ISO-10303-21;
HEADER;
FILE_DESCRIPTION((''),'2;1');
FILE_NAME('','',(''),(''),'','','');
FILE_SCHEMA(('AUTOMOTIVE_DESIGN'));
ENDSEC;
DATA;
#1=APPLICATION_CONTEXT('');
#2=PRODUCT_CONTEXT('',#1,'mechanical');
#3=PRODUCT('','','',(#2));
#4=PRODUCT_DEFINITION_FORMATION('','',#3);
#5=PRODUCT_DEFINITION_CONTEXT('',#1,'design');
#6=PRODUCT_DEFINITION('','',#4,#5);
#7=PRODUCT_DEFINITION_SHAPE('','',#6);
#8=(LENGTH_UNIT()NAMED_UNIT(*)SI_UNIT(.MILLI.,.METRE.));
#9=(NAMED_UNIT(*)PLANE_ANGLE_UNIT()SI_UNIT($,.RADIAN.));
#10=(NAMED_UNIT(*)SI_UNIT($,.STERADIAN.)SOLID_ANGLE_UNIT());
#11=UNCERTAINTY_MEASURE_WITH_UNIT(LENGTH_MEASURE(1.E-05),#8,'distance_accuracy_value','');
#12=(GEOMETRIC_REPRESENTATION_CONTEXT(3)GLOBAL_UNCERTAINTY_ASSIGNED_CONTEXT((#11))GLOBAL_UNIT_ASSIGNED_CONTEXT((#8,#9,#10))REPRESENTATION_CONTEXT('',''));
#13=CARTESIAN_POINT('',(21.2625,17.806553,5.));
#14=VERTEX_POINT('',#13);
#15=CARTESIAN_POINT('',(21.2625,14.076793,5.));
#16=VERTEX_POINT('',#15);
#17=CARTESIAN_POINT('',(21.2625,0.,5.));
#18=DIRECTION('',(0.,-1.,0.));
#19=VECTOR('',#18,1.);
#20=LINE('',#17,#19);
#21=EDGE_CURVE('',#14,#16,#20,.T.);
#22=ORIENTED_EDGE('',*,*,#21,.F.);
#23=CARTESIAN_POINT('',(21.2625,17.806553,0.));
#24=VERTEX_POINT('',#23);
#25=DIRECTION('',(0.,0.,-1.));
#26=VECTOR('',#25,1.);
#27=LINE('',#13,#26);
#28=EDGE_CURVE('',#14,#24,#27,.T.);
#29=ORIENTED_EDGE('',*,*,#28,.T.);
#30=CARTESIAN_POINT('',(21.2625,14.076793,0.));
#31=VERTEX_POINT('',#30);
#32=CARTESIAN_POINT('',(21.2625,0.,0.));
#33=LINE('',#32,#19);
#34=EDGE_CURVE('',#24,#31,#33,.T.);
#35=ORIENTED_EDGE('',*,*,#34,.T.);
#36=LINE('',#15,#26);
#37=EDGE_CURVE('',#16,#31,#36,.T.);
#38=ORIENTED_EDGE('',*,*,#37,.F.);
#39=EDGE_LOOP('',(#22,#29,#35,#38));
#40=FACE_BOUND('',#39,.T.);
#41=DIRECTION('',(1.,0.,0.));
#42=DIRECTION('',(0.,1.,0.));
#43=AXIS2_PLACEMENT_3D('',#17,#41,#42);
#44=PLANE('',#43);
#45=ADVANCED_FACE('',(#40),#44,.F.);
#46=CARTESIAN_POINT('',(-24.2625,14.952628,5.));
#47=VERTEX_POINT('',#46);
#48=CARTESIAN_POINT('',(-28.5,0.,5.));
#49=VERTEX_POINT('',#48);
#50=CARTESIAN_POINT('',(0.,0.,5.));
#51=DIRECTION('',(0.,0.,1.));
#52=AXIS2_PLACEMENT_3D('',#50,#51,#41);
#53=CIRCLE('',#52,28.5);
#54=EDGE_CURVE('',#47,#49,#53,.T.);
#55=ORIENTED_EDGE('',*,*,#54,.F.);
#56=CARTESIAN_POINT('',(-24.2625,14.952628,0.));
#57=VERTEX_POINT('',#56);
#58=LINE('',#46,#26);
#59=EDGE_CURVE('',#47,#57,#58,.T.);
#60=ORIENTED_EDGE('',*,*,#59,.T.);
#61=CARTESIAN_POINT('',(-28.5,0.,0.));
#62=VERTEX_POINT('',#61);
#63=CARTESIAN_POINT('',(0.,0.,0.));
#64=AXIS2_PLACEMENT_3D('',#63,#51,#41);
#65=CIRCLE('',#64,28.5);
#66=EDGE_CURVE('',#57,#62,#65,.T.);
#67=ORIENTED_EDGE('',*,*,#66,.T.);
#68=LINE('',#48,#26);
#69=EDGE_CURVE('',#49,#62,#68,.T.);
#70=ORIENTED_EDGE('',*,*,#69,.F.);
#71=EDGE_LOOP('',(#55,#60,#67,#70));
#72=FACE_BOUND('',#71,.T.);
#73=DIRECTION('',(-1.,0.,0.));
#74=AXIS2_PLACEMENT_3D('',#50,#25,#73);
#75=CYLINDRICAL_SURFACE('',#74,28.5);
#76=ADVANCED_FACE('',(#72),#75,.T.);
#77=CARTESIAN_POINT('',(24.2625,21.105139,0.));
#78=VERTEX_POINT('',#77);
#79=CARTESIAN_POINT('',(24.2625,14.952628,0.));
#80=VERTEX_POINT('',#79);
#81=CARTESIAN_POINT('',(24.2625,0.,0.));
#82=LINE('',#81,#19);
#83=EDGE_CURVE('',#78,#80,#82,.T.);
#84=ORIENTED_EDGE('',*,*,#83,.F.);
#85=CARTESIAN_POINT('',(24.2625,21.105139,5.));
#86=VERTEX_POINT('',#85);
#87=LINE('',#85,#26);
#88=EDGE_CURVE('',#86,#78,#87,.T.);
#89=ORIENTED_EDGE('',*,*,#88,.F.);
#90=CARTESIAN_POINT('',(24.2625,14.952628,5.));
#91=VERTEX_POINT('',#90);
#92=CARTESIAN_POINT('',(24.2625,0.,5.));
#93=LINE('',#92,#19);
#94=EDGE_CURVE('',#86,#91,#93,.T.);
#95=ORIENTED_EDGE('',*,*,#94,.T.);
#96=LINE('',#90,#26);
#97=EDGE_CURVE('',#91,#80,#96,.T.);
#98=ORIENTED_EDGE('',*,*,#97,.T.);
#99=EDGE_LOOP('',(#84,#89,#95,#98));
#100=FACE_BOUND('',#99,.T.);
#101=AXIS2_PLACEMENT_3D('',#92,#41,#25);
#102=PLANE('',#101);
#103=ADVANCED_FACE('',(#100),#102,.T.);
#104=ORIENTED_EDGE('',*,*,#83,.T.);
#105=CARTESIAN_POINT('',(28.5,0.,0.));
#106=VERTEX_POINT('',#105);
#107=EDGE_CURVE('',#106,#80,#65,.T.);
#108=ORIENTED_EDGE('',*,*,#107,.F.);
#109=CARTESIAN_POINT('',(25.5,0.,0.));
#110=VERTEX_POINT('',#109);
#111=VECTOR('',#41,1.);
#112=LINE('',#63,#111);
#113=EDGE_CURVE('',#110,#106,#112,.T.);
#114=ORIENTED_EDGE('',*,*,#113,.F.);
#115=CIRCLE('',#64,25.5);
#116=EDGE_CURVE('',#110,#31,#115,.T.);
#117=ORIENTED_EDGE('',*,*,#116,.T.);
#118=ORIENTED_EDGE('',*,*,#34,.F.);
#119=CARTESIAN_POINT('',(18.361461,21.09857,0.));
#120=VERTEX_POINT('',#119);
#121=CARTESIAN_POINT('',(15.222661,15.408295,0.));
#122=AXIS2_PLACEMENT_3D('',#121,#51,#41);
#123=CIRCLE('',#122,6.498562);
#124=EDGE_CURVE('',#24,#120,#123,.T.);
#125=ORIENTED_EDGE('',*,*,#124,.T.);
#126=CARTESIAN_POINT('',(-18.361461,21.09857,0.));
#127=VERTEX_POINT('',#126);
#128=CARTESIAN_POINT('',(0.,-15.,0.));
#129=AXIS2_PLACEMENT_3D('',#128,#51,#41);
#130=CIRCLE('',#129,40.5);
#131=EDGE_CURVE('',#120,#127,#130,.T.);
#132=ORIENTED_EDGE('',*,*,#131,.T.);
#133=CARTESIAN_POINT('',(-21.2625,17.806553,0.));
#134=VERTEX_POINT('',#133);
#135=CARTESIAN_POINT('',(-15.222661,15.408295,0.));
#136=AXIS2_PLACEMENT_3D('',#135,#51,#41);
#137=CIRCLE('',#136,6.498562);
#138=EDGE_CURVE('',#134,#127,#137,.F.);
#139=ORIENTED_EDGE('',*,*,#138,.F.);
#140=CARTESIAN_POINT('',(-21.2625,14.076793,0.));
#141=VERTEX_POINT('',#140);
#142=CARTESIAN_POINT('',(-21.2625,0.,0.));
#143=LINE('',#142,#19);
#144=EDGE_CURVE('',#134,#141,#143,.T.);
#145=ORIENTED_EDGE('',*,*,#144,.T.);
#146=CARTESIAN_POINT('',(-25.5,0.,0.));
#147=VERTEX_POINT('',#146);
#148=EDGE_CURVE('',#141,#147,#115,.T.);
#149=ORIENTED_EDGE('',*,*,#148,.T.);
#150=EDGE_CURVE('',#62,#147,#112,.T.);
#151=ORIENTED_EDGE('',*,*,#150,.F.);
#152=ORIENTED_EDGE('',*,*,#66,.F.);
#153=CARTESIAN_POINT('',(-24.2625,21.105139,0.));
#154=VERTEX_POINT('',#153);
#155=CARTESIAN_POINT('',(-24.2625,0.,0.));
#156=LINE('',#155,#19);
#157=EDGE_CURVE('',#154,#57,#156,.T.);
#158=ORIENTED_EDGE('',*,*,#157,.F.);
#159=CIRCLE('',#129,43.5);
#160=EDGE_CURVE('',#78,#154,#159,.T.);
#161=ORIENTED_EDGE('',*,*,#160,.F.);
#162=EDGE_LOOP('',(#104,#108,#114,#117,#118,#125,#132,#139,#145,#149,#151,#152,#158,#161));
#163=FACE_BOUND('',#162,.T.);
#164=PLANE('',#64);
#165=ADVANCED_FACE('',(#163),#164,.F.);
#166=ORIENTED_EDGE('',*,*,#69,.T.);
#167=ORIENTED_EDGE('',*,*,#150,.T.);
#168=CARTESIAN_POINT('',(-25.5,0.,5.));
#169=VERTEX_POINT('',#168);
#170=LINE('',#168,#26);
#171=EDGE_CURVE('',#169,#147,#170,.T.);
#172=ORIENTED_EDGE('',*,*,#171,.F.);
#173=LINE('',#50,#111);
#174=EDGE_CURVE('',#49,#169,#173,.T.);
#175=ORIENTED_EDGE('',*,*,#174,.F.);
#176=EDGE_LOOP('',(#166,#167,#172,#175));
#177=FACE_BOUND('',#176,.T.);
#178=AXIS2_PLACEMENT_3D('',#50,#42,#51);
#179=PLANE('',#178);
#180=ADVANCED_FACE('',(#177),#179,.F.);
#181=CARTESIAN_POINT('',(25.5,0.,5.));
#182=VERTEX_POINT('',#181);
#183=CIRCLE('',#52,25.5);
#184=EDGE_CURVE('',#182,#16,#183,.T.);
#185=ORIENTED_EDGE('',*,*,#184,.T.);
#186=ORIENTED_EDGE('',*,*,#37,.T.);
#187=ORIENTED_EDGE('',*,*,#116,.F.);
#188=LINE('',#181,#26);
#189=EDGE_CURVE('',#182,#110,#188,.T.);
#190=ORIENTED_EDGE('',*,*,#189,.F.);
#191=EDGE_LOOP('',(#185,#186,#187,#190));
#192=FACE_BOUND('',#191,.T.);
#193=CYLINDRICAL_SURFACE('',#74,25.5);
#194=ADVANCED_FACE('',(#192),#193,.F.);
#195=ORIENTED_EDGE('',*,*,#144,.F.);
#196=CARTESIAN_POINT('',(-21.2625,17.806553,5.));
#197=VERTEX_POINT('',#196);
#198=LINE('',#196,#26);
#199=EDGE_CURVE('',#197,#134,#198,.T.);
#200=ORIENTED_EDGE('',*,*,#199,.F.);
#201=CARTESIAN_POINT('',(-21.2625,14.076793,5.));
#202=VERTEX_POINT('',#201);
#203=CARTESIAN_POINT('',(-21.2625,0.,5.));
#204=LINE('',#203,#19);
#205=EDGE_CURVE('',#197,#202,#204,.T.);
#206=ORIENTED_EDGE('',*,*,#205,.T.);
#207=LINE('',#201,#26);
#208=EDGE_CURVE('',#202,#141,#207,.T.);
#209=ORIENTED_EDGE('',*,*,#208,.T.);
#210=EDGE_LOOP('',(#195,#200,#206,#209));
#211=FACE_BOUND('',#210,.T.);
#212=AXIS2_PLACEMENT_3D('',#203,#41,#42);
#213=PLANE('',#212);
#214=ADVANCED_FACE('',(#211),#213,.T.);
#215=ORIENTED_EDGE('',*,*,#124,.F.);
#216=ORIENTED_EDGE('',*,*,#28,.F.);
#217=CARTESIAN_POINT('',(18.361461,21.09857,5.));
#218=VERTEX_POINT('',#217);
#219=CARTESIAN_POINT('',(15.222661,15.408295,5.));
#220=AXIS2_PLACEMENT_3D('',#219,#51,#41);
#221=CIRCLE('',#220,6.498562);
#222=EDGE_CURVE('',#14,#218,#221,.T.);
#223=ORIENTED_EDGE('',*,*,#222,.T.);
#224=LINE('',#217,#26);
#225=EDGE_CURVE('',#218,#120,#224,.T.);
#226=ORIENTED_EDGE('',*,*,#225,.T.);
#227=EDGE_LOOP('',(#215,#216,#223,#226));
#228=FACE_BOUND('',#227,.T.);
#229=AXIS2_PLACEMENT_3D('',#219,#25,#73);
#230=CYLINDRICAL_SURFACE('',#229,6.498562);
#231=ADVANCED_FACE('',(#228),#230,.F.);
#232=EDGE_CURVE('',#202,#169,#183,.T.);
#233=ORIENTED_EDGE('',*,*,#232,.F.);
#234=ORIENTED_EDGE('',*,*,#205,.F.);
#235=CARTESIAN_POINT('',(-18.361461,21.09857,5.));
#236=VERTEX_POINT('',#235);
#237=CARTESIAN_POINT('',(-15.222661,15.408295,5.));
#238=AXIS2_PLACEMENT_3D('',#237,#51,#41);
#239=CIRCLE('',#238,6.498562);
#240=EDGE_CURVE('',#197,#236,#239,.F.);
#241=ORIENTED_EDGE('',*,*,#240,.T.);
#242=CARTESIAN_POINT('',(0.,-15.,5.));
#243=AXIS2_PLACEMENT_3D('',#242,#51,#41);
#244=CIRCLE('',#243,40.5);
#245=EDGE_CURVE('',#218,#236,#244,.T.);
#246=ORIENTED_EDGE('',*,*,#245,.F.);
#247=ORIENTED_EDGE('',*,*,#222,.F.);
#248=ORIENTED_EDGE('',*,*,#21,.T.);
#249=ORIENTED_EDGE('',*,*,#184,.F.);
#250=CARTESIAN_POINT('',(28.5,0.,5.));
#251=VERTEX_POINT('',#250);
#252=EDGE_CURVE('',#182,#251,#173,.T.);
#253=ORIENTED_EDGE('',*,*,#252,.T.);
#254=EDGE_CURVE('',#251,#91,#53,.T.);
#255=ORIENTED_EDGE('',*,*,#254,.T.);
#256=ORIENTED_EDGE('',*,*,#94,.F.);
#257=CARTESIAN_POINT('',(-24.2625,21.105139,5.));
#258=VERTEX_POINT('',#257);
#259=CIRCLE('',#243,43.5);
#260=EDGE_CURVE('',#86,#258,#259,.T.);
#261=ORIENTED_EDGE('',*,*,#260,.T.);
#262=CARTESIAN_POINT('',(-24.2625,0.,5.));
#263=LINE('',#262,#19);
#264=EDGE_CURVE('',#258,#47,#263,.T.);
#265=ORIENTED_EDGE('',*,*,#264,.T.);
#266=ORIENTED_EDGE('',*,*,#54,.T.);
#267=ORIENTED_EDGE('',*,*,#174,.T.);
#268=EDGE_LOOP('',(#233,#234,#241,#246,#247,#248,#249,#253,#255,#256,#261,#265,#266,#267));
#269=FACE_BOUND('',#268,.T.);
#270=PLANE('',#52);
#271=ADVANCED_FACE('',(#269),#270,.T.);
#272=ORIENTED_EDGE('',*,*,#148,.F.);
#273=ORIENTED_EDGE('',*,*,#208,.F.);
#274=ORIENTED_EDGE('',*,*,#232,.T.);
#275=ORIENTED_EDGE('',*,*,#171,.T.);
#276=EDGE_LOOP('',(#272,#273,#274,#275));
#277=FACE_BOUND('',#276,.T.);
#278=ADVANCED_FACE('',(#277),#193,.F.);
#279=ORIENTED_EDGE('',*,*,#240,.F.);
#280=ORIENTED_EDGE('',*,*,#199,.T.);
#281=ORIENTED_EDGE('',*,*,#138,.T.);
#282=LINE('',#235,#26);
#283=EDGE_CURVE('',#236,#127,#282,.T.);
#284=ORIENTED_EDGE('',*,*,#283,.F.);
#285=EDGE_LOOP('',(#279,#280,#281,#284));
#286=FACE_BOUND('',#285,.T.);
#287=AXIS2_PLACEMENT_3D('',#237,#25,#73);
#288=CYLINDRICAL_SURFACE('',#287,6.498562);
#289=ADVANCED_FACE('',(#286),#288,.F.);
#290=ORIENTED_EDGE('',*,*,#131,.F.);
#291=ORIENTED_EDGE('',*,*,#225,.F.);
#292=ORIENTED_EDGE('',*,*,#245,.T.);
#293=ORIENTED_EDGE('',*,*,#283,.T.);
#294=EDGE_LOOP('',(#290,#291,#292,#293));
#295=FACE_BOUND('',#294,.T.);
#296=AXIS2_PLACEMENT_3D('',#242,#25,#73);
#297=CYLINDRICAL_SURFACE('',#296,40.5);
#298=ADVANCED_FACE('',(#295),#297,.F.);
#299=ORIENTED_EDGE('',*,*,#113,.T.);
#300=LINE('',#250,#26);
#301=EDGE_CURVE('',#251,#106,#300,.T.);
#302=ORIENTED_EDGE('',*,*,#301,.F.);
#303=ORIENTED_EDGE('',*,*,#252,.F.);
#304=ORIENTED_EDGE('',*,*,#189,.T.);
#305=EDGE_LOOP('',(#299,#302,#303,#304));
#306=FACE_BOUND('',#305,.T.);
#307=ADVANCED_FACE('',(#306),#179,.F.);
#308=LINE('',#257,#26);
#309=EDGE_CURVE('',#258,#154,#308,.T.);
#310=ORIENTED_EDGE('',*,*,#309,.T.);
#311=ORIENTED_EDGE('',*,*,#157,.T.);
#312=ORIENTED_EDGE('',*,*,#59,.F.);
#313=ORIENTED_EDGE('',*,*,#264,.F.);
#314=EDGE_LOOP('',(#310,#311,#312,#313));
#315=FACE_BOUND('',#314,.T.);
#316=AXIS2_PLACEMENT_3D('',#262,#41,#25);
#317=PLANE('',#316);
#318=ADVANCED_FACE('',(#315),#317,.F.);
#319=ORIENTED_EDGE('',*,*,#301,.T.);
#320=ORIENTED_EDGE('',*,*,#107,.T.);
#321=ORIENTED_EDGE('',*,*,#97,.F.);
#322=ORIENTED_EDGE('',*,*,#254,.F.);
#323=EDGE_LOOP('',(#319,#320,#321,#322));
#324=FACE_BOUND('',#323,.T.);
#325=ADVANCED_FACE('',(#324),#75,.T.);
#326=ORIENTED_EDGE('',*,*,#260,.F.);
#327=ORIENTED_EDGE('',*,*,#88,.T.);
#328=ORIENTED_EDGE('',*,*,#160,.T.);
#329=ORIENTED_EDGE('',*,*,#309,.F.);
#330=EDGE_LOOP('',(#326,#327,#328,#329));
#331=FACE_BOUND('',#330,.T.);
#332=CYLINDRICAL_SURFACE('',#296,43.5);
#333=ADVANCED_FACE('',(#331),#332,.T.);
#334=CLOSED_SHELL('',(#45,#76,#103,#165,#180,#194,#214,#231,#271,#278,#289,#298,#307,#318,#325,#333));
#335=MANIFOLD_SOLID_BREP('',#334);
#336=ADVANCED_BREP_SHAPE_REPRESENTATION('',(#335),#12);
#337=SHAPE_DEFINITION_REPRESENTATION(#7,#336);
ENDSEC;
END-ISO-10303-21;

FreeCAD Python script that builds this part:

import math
import FreeCAD as App
import Part
import Sketcher
Q = App.Units.Quantity

doc = App.newDocument("Part")
body = doc.addObject("PartDesign::Body", "Body")

sketch1 = body.newObject("Sketcher::SketchObject", "Sketch")
sketch1.AttachmentSupport = (doc.getObject("XY_Plane"), [""])
sketch1.MapMode = "FlatFace"
sketch1.addGeometry(Part.LineSegment(App.Vector(-28.5, 0, 0), App.Vector(-25.5, 0, 0)), False)
sketch1.addGeometry(Part.ArcOfCircle(Part.Circle(App.Vector(0, 0, 0), App.Vector(0, 0, 1), 25.5), math.radians(146), math.radians(180)), False)
sketch1.addGeometry(Part.LineSegment(App.Vector(-21.3, 14.1, 0), App.Vector(-21.3, 17.8, 0)), False)
sketch1.addGeometry(Part.ArcOfCircle(Part.Circle(App.Vector(-15.2, 15.4, 0), App.Vector(0, 0, 1), 6.5), math.radians(119), math.radians(158)), False)
sketch1.addGeometry(Part.ArcOfCircle(Part.Circle(App.Vector(0, -15, 0), App.Vector(0, 0, 1), 40.5), math.radians(63), math.radians(117)), False)
sketch1.addGeometry(Part.ArcOfCircle(Part.Circle(App.Vector(15.2, 15.4, 0), App.Vector(0, 0, 1), 6.5), math.radians(22), math.radians(61)), False)
sketch1.addGeometry(Part.LineSegment(App.Vector(21.3, 17.8, 0), App.Vector(21.3, 14.1, 0)), False)
sketch1.addGeometry(Part.ArcOfCircle(Part.Circle(App.Vector(0, 0, 0), App.Vector(0, 0, 1), 25.5), math.radians(0), math.radians(34)), False)
sketch1.addGeometry(Part.LineSegment(App.Vector(25.5, 0, 0), App.Vector(28.5, 0, 0)), False)
sketch1.addGeometry(Part.ArcOfCircle(Part.Circle(App.Vector(0, 0, 0), App.Vector(0, 0, 1), 28.5), math.radians(0), math.radians(32)), False)
sketch1.addGeometry(Part.LineSegment(App.Vector(24.3, 15, 0), App.Vector(24.3, 21.1, 0)), False)
sketch1.addGeometry(Part.ArcOfCircle(Part.Circle(App.Vector(0, -15, 0), App.Vector(0, 0, 1), 43.5), math.radians(56), math.radians(124)), False)
sketch1.addGeometry(Part.LineSegment(App.Vector(-24.3, 21.1, 0), App.Vector(-24.3, 15, 0)), False)
sketch1.addGeometry(Part.ArcOfCircle(Part.Circle(App.Vector(0, 0, 0), App.Vector(0, 0, 1), 28.5), math.radians(148), math.radians(180)), False)
sketch1.addConstraint(Sketcher.Constraint("Coincident", 0, 2, 1, 2))
sketch1.addConstraint(Sketcher.Constraint("Coincident", 1, 1, 2, 1))
sketch1.addConstraint(Sketcher.Constraint("Coincident", 2, 2, 3, 2))
sketch1.addConstraint(Sketcher.Constraint("Coincident", 3, 1, 4, 2))
sketch1.addConstraint(Sketcher.Constraint("Coincident", 4, 1, 5, 2))
sketch1.addConstraint(Sketcher.Constraint("Coincident", 5, 1, 6, 1))
sketch1.addConstraint(Sketcher.Constraint("Coincident", 6, 2, 7, 2))
sketch1.addConstraint(Sketcher.Constraint("Coincident", 7, 1, 8, 1))
sketch1.addConstraint(Sketcher.Constraint("Coincident", 8, 2, 9, 1))
sketch1.addConstraint(Sketcher.Constraint("Coincident", 9, 2, 10, 1))
sketch1.addConstraint(Sketcher.Constraint("Coincident", 10, 2, 11, 1))
sketch1.addConstraint(Sketcher.Constraint("Coincident", 11, 2, 12, 1))
sketch1.addConstraint(Sketcher.Constraint("Coincident", 12, 2, 13, 1))
sketch1.addConstraint(Sketcher.Constraint("Coincident", 13, 2, 0, 1))
sketch1.addConstraint(Sketcher.Constraint("Horizontal", 0))
sketch1.addConstraint(Sketcher.Constraint("Vertical", 2))
sketch1.addConstraint(Sketcher.Constraint("Vertical", 6))
sketch1.addConstraint(Sketcher.Constraint("Horizontal", 8))
sketch1.addConstraint(Sketcher.Constraint("Vertical", 10))
sketch1.addConstraint(Sketcher.Constraint("Vertical", 12))
sketch1.addConstraint(Sketcher.Constraint("Coincident", 1, 3, -1, 1))
sketch1.addConstraint(Sketcher.Constraint("Coincident", 7, 3, -1, 1))
sketch1.addConstraint(Sketcher.Constraint("Coincident", 9, 3, -1, 1))
sketch1.addConstraint(Sketcher.Constraint("Coincident", 13, 3, -1, 1))
sketch1.addConstraint(Sketcher.Constraint("Coincident", 11, 3, 4, 3))
sketch1.addConstraint(Sketcher.Constraint("Equal", 3, 5))
sketch1.addConstraint(Sketcher.Constraint("Equal", 1, 7))
sketch1.addConstraint(Sketcher.Constraint("Equal", 9, 13))
sketch1.addConstraint(Sketcher.Constraint("Symmetric", 3, 3, 5, 3, -2))
sketch1.addConstraint(Sketcher.Constraint("Symmetric", 10, 2, 11, 2, -2))
sketch1.addConstraint(Sketcher.Constraint("PointOnObject", 0, 2, -1))
sketch1.addConstraint(Sketcher.Constraint("PointOnObject", 7, 1, -1))
sketch1.addConstraint(Sketcher.Constraint("Horizontal", 2, 2, 5, 1))
sketch1.addConstraint(Sketcher.Constraint("Radius", 1, Q("25.5 mm")))
sketch1.addConstraint(Sketcher.Constraint("Radius", 4, Q("40.5 mm")))
sketch1.addConstraint(Sketcher.Constraint("Radius", 9, Q("28.5 mm")))
sketch1.addConstraint(Sketcher.Constraint("Radius", 11, Q("43.5 mm")))
sketch1.addConstraint(Sketcher.Constraint("DistanceY", 4, 3, -1, 1, Q("15 mm")))
sketch1.addConstraint(Sketcher.Constraint("DistanceX", 6, 2, 9, 2, Q("3 mm")))
sketch1.addConstraint(Sketcher.Constraint("Radius", 3, Q("6.498562 mm")))
sketch1.addConstraint(Sketcher.Constraint("DistanceY", 2, 1, 2, 2, Q("3.72976 mm")))
sketch1.addConstraint(Sketcher.Constraint("DistanceY", 10, 1, 10, 2, Q("6.152511 mm")))
sketch1.addConstraint(Sketcher.Constraint("DistanceY", 1, 1, 3, 3, Q("1.331502 mm")))
pad1 = body.newObject("PartDesign::Pad", "Pad")
pad1.Profile = sketch1
pad1.Length = 5

doc.recompute()
